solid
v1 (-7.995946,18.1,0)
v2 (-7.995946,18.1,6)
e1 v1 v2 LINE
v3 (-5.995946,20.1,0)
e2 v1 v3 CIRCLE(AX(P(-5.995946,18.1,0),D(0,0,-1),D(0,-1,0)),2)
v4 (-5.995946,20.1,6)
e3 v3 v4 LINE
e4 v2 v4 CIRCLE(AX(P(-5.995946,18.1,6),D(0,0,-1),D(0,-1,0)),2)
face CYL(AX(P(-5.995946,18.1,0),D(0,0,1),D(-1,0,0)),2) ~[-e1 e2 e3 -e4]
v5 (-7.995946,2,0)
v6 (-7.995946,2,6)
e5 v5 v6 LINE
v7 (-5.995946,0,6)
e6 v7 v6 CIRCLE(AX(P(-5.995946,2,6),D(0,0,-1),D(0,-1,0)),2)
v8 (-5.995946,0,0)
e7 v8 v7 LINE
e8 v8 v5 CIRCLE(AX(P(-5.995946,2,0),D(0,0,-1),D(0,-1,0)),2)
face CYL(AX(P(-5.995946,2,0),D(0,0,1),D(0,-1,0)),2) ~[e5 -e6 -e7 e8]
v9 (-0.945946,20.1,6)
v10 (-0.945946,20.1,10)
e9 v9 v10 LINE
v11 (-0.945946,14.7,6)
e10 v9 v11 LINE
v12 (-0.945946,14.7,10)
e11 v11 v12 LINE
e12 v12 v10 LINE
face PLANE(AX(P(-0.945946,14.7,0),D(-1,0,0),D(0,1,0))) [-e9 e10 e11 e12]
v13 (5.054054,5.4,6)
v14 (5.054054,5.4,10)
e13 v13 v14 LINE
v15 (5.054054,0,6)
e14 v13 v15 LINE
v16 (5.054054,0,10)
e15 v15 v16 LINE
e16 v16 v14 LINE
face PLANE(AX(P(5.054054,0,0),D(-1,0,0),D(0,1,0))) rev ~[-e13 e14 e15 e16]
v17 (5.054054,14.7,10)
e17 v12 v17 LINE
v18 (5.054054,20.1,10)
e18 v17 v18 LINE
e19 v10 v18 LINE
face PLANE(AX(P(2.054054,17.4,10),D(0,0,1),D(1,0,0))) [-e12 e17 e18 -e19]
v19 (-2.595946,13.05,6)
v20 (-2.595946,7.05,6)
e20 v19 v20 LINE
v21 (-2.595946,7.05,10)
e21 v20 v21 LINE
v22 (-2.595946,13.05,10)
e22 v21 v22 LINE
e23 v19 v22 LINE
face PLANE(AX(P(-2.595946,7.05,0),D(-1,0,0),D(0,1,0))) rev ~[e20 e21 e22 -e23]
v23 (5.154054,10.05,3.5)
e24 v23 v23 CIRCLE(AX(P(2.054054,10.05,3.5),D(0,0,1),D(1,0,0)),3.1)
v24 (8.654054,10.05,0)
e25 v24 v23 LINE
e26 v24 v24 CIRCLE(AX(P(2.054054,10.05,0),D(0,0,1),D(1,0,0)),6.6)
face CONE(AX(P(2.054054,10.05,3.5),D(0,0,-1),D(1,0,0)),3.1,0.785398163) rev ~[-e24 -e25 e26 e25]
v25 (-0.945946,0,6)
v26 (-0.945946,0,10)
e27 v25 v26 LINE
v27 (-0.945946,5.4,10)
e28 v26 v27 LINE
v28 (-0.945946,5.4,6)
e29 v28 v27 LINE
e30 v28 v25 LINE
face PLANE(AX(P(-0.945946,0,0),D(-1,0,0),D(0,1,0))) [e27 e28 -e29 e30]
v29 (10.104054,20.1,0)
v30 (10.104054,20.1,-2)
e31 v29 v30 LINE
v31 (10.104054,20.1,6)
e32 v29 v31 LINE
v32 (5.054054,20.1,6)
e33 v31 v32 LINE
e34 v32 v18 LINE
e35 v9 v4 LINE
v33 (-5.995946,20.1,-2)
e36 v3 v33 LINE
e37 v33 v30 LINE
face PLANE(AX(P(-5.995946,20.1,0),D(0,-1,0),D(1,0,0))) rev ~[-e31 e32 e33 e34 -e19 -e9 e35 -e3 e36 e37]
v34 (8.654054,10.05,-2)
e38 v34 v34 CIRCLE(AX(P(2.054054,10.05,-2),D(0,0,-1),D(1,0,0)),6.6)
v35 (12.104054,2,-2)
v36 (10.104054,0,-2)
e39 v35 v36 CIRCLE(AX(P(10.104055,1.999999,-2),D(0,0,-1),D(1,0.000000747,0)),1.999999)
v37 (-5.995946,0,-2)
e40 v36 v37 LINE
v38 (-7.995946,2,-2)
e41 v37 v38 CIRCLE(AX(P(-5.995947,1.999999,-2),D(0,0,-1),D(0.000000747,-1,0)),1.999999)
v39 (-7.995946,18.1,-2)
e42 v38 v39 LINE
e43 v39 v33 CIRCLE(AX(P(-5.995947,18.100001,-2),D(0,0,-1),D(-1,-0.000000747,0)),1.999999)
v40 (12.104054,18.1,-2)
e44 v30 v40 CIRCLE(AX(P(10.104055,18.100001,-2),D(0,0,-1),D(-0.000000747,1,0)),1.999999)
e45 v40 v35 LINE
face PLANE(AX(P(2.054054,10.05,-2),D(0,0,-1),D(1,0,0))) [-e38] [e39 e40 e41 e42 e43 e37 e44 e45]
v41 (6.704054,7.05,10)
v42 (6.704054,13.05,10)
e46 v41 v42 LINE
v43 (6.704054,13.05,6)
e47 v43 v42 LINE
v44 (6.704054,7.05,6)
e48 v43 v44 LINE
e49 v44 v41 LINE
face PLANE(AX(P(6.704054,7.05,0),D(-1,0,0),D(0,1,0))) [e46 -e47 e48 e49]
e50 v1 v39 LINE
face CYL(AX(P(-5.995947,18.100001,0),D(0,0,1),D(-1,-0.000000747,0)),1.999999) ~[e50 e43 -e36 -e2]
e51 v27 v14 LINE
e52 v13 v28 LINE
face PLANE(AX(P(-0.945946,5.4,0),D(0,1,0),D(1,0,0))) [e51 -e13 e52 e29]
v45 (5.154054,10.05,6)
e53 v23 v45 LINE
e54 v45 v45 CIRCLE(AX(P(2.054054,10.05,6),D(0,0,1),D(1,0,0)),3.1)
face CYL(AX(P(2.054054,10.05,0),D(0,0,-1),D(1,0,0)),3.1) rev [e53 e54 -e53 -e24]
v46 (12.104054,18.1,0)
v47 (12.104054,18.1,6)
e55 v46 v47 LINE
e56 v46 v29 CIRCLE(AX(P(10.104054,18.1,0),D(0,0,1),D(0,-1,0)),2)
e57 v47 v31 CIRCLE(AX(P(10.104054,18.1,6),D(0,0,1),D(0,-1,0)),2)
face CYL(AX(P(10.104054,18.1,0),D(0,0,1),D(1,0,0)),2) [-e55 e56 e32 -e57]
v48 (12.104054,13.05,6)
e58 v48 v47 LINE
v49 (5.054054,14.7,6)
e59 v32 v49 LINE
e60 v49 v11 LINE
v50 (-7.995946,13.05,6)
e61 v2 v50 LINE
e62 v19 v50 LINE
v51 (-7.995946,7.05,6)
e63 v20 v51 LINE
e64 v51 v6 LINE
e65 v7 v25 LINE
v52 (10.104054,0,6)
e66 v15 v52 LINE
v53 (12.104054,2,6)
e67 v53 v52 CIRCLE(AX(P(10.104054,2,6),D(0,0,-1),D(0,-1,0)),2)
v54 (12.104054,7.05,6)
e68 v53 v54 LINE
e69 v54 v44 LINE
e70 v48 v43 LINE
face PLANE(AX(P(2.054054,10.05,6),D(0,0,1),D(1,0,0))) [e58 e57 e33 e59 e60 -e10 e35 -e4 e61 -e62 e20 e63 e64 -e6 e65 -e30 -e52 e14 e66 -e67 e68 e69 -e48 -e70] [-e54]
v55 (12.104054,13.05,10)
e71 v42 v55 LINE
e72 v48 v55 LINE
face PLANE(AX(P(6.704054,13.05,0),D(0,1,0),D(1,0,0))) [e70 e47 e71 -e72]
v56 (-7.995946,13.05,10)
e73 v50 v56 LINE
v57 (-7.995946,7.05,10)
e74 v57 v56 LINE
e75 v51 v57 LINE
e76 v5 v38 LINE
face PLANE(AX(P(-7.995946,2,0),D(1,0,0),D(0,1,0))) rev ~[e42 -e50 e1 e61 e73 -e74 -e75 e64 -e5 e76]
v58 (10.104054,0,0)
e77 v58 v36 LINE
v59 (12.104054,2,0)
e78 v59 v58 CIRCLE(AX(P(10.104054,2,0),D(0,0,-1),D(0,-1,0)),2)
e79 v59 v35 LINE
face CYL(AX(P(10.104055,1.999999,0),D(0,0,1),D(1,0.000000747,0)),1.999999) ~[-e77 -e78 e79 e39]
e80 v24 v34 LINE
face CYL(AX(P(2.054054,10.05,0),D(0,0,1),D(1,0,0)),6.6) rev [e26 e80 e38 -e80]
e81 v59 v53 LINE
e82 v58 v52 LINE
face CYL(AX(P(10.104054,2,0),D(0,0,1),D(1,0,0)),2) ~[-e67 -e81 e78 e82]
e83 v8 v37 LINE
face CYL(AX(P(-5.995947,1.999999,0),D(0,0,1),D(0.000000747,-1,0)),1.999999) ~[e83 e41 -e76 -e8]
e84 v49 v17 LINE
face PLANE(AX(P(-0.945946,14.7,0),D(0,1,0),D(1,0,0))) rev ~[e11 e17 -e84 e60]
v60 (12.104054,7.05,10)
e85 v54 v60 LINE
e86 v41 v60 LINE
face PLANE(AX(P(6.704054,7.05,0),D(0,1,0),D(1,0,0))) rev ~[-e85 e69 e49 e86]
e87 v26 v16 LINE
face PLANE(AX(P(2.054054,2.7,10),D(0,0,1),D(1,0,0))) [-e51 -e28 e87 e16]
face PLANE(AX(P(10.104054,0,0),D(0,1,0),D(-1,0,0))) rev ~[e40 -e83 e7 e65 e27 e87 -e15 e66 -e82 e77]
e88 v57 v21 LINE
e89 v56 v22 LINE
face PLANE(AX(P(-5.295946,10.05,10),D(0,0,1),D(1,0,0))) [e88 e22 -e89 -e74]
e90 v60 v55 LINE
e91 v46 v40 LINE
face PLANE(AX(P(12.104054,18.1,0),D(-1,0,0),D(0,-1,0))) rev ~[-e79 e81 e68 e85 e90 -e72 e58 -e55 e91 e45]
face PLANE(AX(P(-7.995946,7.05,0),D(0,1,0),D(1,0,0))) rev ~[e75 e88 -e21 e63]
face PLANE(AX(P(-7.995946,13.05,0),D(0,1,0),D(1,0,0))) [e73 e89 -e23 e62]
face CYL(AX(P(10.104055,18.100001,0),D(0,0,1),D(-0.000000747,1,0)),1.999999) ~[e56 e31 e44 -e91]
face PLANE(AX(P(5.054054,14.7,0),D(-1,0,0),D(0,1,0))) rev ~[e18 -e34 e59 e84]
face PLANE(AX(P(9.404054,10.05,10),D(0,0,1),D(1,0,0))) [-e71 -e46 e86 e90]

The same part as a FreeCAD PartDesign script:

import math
import FreeCAD as App
import Part
import Sketcher

V = App.Vector
Q = App.Units.Quantity


def edges_at(feature, points):
    """Names of the edges that pass closest to the given points."""
    edges = feature.Shape.Edges
    near = lambda p: min(range(len(edges)), key=lambda i: edges[i].distToShape(Part.Vertex(*p))[0])
    return sorted({f"Edge{near(p) + 1}" for p in points})

doc = App.newDocument("Part")
params = doc.addObject("Spreadsheet::Sheet", "Params")
for row, (alias, value) in enumerate([
    ("sketch1_diameter", "6.2 mm"),
    ("sketch1_width", "20.1 mm"),
    ("pad1_length", "6 mm"),
    ("sketch2_width", "6 mm"),
    ("sketch2_width2", "5.4 mm"),
    ("pad2_length", "10 mm"),
    ("fillet_radius", "2 mm"),
    ("chamfer_size", "3.5 mm"),
    ("sketch3_radius", "1.999999 mm"),
    ("sketch3_diameter", "13.2 mm"),
    ("sketch3_width", "16.1 mm"),
    ("pad3_length", "2 mm"),
], start=1):
    params.set(f"A{row}", alias)
    params.set(f"B{row}", "=" + value)
    params.setAlias(f"B{row}", alias)

body = doc.addObject("PartDesign::Body", "Body")

sketch1 = body.newObject("Sketcher::SketchObject", "Sketch")
sketch1.AttachmentSupport = (doc.getObject("XY_Plane"), [""])
sketch1.MapMode = "FlatFace"
sketch1.addGeometry(Part.LineSegment(V(-8, 0, 0), V(12.1, 0, 0)), False)
sketch1.addGeometry(Part.LineSegment(V(12.1, 0, 0), V(12.1, 20.1, 0)), False)
sketch1.addGeometry(Part.LineSegment(V(12.1, 20.1, 0), V(-8, 20.1, 0)), False)
sketch1.addGeometry(Part.LineSegment(V(-8, 20.1, 0), V(-8, 0, 0)), False)
sketch1.addGeometry(Part.Circle(V(2.1, 10.1, 0), V(0, 0, 1), 3.1), False)
sketch1.addConstraint(Sketcher.Constraint("Coincident", 0, 2, 1, 1))
sketch1.addConstraint(Sketcher.Constraint("Coincident", 1, 2, 2, 1))
sketch1.addConstraint(Sketcher.Constraint("Coincident", 2, 2, 3, 1))
sketch1.addConstraint(Sketcher.Constraint("Coincident", 3, 2, 0, 1))
sketch1.addConstraint(Sketcher.Constraint("Horizontal", 0))
sketch1.addConstraint(Sketcher.Constraint("Vertical", 1))
sketch1.addConstraint(Sketcher.Constraint("Horizontal", 2))
sketch1.addConstraint(Sketcher.Constraint("Vertical", 3))
sketch1.addConstraint(Sketcher.Constraint("PointOnObject", 0, 2, -1))
sketch1.addConstraint(Sketcher.Constraint("Equal", 2, 1))
sketch1.addConstraint(Sketcher.Constraint("Diameter", 4, Q("6.2 mm")))
sketch1.addConstraint(Sketcher.Constraint("DistanceX", 0, 1, 0, 2, Q("20.1 mm")))
sketch1.addConstraint(Sketcher.Constraint("DistanceY", -1, 1, 4, 3, Q("10.05 mm")))
sketch1.addConstraint(Sketcher.Constraint("DistanceX", 4, 3, 0, 2, Q("10.05 mm")))
sketch1.addConstraint(Sketcher.Constraint("DistanceX", -1, 1, 4, 3, Q("2.054054 mm")))
sketch1.setExpression("Constraints[10]", "Params.sketch1_diameter")
sketch1.setExpression("Constraints[11]", "Params.sketch1_width")
pad1 = body.newObject("PartDesign::Pad", "Pad")
pad1.Profile = sketch1
pad1.setExpression("Length", "Params.pad1_length")

sketch2 = body.newObject("Sketcher::SketchObject", "Sketch001")
sketch2.AttachmentSupport = (doc.getObject("XY_Plane"), [""])
sketch2.MapMode = "FlatFace"
sketch2.addGeometry(Part.LineSegment(V(-1, 20, 0), V(-1, 15, 0)), False)
sketch2.addGeometry(Part.LineSegment(V(-1, 15, 0), V(5, 15, 0)), False)
sketch2.addGeometry(Part.LineSegment(V(5, 15, 0), V(5, 20, 0)), False)
sketch2.addGeometry(Part.LineSegment(V(5, 20, 0), V(-1, 20, 0)), False)
sketch2.addGeometry(Part.LineSegment(V(-8, 13, 0), V(-8, 7, 0)), False)
sketch2.addGeometry(Part.LineSegment(V(-8, 7, 0), V(-3, 7, 0)), False)
sketch2.addGeometry(Part.LineSegment(V(-3, 7, 0), V(-3, 13, 0)), False)
sketch2.addGeometry(Part.LineSegment(V(-3, 13, 0), V(-8, 13, 0)), False)
sketch2.addGeometry(Part.LineSegment(V(-1, 5, 0), V(-1, 0, 0)), False)
sketch2.addGeometry(Part.LineSegment(V(-1, 0, 0), V(5, 0, 0)), False)
sketch2.addGeometry(Part.LineSegment(V(5, 0, 0), V(5, 5, 0)), False)
sketch2.addGeometry(Part.LineSegment(V(5, 5, 0), V(-1, 5, 0)), False)
sketch2.addGeometry(Part.LineSegment(V(7, 13, 0), V(7, 7, 0)), False)
sketch2.addGeometry(Part.LineSegment(V(7, 7, 0), V(12, 7, 0)), False)
sketch2.addGeometry(Part.LineSegment(V(12, 7, 0), V(12, 13, 0)), False)
sketch2.addGeometry(Part.LineSegment(V(12, 13, 0), V(7, 13, 0)), False)
sketch2.addConstraint(Sketcher.Constraint("Coincident", 0, 2, 1, 1))
sketch2.addConstraint(Sketcher.Constraint("Coincident", 1, 2, 2, 1))
sketch2.addConstraint(Sketcher.Constraint("Coincident", 2, 2, 3, 1))
sketch2.addConstraint(Sketcher.Constraint("Coincident", 3, 2, 0, 1))
sketch2.addConstraint(Sketcher.Constraint("Coincident", 4, 2, 5, 1))
sketch2.addConstraint(Sketcher.Constraint("Coincident", 5, 2, 6, 1))
sketch2.addConstraint(Sketcher.Constraint("Coincident", 6, 2, 7, 1))
sketch2.addConstraint(Sketcher.Constraint("Coincident", 7, 2, 4, 1))
sketch2.addConstraint(Sketcher.Constraint("Coincident", 8, 2, 9, 1))
sketch2.addConstraint(Sketcher.Constraint("Coincident", 9, 2, 10, 1))
sketch2.addConstraint(Sketcher.Constraint("Coincident", 10, 2, 11, 1))
sketch2.addConstraint(Sketcher.Constraint("Coincident", 11, 2, 8, 1))
sketch2.addConstraint(Sketcher.Constraint("Coincident", 12, 2, 13, 1))
sketch2.addConstraint(Sketcher.Constraint("Coincident", 13, 2, 14, 1))
sketch2.addConstraint(Sketcher.Constraint("Coincident", 14, 2, 15, 1))
sketch2.addConstraint(Sketcher.Constraint("Coincident", 15, 2, 12, 1))
sketch2.addConstraint(Sketcher.Constraint("Vertical", 0))
sketch2.addConstraint(Sketcher.Constraint("Horizontal", 1))
sketch2.addConstraint(Sketcher.Constraint("Vertical", 2))
sketch2.addConstraint(Sketcher.Constraint("Horizontal", 3))
sketch2.addConstraint(Sketcher.Constraint("Vertical", 4))
sketch2.addConstraint(Sketcher.Constraint("Horizontal", 5))
sketch2.addConstraint(Sketcher.Constraint("Vertical", 6))
sketch2.addConstraint(Sketcher.Constraint("Horizontal", 7))
sketch2.addConstraint(Sketcher.Constraint("Vertical", 8))
sketch2.addConstraint(Sketcher.Constraint("Horizontal", 9))
sketch2.addConstraint(Sketcher.Constraint("Vertical", 10))
sketch2.addConstraint(Sketcher.Constraint("Horizontal", 11))
sketch2.addConstraint(Sketcher.Constraint("Vertical", 12))
sketch2.addConstraint(Sketcher.Constraint("Horizontal", 13))
sketch2.addConstraint(Sketcher.Constraint("Vertical", 14))
sketch2.addConstraint(Sketcher.Constraint("Horizontal", 15))
sketch2.addConstraint(Sketcher.Constraint("PointOnObject", 8, 2, -1))
sketch2.addConstraint(Sketcher.Constraint("Horizontal", 5, 2, 12, 2))
sketch2.addConstraint(Sketcher.Constraint("Horizontal", 7, 2, 14, 2))
sketch2.addConstraint(Sketcher.Constraint("Vertical", 3, 2, 8, 2))
sketch2.addConstraint(Sketcher.Constraint("Vertical", 2, 2, 9, 2))
sketch2.addConstraint(Sketcher.Constraint("Equal", 7, 13))
sketch2.addConstraint(Sketcher.Constraint("Equal", 15, 0))
sketch2.addConstraint(Sketcher.Constraint("Equal", 11, 4))
sketch2.addConstraint(Sketcher.Constraint("Equal", 2, 8))
sketch2.addConstraint(Sketcher.Constraint("DistanceX", 1, 1, 1, 2, Q("6 mm")))
sketch2.addConstraint(Sketcher.Constraint("DistanceX", 5, 1, 5, 2, Q("5.4 mm")))
sketch2.addConstraint(Sketcher.Constraint("DistanceY", -1, 1, 0, 2, Q("14.7 mm")))
sketch2.addConstraint(Sketcher.Constraint("DistanceX", 5, 2, 12, 2, Q("9.3 mm")))
sketch2.addConstraint(Sketcher.Constraint("DistanceY", -1, 1, 4, 2, Q("7.05 mm")))
sketch2.addConstraint(Sketcher.Constraint("DistanceX", 4, 2, 0, 2, Q("7.05 mm")))
sketch2.addConstraint(Sketcher.Constraint("DistanceX", 0, 2, -1, 1, Q("0.945946 mm")))
sketch2.setExpression("Constraints[41]", "Params.sketch2_width")
sketch2.setExpression("Constraints[42]", "Params.sketch2_width2")
pad2 = body.newObject("PartDesign::Pad", "Pad001")
pad2.Profile = sketch2
pad2.setExpression("Length", "Params.pad2_length")
doc.recompute()

fillet = body.newObject("PartDesign::Fillet", "Fillet")
fillet.Base = (pad2, edges_at(pad2, [
    (-7.996, 0, 3),
    (12.104, 0, 3),
    (12.104, 20.1, 3),
    (-7.996, 20.1, 3),
]))
fillet.setExpression("Radius", "Params.fillet_radius")
doc.recompute()

chamfer = body.newObject("PartDesign::Chamfer", "Chamfer")
chamfer.Base = (fillet, edges_at(fillet, [(-1.046, 10.05, 0)]))
chamfer.setExpression("Size", "Params.chamfer_size")

sketch3 = body.newObject("Sketcher::SketchObject", "Sketch002")
sketch3.AttachmentSupport = (doc.getObject("XY_Plane"), [""])
sketch3.MapMode = "FlatFace"
sketch3.addGeometry(Part.LineSegment(V(-6, 20.1, 0), V(10.1, 20.1, 0)), False)
sketch3.addGeometry(Part.ArcOfCircle(Part.Circle(V(10.1, 18.1, 0), V(0, 0, 1), 2), math.radians(0), math.radians(90)), False)
sketch3.addGeometry(Part.LineSegment(V(12.1, 18.1, 0), V(12.1, 2, 0)), False)
sketch3.addGeometry(Part.ArcOfCircle(Part.Circle(V(10.1, 2, 0), V(0, 0, 1), 2), math.radians(-90), math.radians(0)), False)
sketch3.addGeometry(Part.LineSegment(V(10.1, 0, 0), V(-6, 0, 0)), False)
sketch3.addGeometry(Part.ArcOfCircle(Part.Circle(V(-6, 2, 0), V(0, 0, 1), 2), math.radians(180), math.radians(270)), False)
sketch3.addGeometry(Part.LineSegment(V(-8, 2, 0), V(-8, 18.1, 0)), False)
sketch3.addGeometry(Part.ArcOfCircle(Part.Circle(V(-6, 18.1, 0), V(0, 0, 1), 2), math.radians(90), math.radians(180)), False)
sketch3.addGeometry(Part.Circle(V(2.1, 10.1, 0), V(0, 0, 1), 6.6), False)
sketch3.addConstraint(Sketcher.Constraint("Tangent", 0, 2, 1, 2))
sketch3.addConstraint(Sketcher.Constraint("Tangent", 1, 1, 2, 1))
sketch3.addConstraint(Sketcher.Constraint("Tangent", 2, 2, 3, 2))
sketch3.addConstraint(Sketcher.Constraint("Tangent", 3, 1, 4, 1))
sketch3.addConstraint(Sketcher.Constraint("Tangent", 4, 2, 5, 2))
sketch3.addConstraint(Sketcher.Constraint("Tangent", 5, 1, 6, 1))
sketch3.addConstraint(Sketcher.Constraint("Tangent", 6, 2, 7, 2))
sketch3.addConstraint(Sketcher.Constraint("Tangent", 7, 1, 0, 1))
sketch3.addConstraint(Sketcher.Constraint("Horizontal", 0))
sketch3.addConstraint(Sketcher.Constraint("Vertical", 2))
sketch3.addConstraint(Sketcher.Constraint("Horizontal", 4))
sketch3.addConstraint(Sketcher.Constraint("Vertical", 6))
sketch3.addConstraint(Sketcher.Constraint("Equal", 1, 3))
sketch3.addConstraint(Sketcher.Constraint("Equal", 3, 5))
sketch3.addConstraint(Sketcher.Constraint("Equal", 5, 7))
sketch3.addConstraint(Sketcher.Constraint("PointOnObject", 3, 1, -1))
sketch3.addConstraint(Sketcher.Constraint("Equal", 4, 2))
sketch3.addConstraint(Sketcher.Constraint("Radius", 1, Q("1.999999 mm")))
sketch3.addConstraint(Sketcher.Constraint("Diameter", 8, Q("13.2 mm")))
sketch3.addConstraint(Sketcher.Constraint("DistanceX", 0, 1, 0, 2, Q("16.1 mm")))
sketch3.addConstraint(Sketcher.Constraint("DistanceY", -1, 1, 8, 3, Q("10.05 mm")))
sketch3.addConstraint(Sketcher.Constraint("DistanceX", 8, 3, 1, 3, Q("8.050001 mm")))
sketch3.addConstraint(Sketcher.Constraint("DistanceX", -1, 1, 1, 3, Q("10.104055 mm")))
sketch3.setExpression("Constraints[17]", "Params.sketch3_radius")
sketch3.setExpression("Constraints[18]", "Params.sketch3_diameter")
sketch3.setExpression("Constraints[19]", "Params.sketch3_width")
pad3 = body.newObject("PartDesign::Pad", "Pad002")
pad3.Profile = sketch3
pad3.setExpression("Length", "Params.pad3_length")
pad3.Reversed = True

doc.recompute()
